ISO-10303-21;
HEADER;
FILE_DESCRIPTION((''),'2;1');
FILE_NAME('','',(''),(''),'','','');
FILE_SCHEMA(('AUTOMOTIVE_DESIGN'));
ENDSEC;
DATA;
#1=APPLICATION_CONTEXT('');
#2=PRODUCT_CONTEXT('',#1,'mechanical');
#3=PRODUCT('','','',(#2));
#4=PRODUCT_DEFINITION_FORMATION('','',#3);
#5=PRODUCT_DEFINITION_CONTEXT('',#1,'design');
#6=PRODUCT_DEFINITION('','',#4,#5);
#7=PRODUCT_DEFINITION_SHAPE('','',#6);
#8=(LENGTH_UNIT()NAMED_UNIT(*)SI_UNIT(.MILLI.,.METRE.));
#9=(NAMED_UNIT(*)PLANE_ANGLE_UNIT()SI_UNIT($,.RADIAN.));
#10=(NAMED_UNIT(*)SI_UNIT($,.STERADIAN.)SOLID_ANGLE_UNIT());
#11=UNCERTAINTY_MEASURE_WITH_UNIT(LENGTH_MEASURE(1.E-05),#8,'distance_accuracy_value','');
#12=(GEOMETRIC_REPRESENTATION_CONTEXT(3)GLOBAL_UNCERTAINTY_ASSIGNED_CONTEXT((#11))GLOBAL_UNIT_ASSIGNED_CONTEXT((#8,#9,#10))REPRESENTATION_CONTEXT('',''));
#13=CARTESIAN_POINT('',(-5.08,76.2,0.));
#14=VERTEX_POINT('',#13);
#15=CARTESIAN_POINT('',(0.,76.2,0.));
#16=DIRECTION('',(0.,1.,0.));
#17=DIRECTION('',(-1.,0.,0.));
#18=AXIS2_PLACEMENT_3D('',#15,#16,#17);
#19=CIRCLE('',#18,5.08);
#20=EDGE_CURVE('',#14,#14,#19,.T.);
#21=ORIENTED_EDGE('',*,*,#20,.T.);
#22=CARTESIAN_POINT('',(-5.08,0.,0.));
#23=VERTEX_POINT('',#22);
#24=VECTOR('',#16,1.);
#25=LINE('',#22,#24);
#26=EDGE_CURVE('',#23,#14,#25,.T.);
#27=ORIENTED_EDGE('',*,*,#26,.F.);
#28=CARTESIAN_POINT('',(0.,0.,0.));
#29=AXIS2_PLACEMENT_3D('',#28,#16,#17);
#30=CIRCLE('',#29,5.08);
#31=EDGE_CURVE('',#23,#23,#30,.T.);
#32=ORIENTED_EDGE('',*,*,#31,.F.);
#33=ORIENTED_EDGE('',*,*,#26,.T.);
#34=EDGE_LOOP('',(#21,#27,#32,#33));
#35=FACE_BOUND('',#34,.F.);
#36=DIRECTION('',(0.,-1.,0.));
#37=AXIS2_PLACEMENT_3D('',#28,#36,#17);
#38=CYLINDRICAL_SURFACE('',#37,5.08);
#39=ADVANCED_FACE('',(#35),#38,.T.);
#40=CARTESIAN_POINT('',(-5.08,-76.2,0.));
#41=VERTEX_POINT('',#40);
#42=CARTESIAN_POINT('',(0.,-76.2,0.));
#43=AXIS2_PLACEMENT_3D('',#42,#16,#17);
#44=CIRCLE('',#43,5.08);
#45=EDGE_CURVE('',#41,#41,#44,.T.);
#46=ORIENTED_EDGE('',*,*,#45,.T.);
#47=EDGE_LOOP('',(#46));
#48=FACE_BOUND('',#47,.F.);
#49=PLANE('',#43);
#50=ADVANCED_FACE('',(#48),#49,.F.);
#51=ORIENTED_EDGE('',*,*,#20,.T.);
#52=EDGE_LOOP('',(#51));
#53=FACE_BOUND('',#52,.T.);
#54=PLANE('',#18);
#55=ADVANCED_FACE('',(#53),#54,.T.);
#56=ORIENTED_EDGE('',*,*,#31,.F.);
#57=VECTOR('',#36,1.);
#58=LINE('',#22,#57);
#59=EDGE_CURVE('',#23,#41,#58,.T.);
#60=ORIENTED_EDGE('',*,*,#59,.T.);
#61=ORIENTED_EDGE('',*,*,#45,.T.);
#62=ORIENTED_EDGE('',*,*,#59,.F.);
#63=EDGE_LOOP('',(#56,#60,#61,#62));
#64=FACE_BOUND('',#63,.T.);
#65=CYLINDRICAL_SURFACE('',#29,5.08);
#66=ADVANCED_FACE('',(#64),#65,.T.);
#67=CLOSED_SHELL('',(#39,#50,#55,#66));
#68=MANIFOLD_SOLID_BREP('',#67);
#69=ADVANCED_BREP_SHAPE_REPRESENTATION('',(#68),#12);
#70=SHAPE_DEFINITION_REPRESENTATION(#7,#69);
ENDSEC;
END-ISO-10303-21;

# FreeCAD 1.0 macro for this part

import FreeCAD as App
import Part
import Sketcher
Q = App.Units.Quantity

doc = App.newDocument("Part")
body = doc.addObject("PartDesign::Body", "Body")

# Sketch on XZ plane
sketch1 = doc.addObject("Sketcher::SketchObject", "Sketch")
body.addObject(sketch1)
sketch1.AttachmentSupport = (doc.XZ_Plane, [""])
sketch1.MapMode = "FlatFace"
sketch1.addGeometry(Part.Circle(App.Vector(0, 0, 0), App.Vector(0, 0, 1), 5), False)
sketch1.addConstraint([
    Sketcher.Constraint("Coincident", 0, 3, -1, 1),
    Sketcher.Constraint("Diameter", 0, Q("0.4 in")),
])
pad1 = doc.addObject("PartDesign::Pad", "Pad")
body.addObject(pad1)
pad1.Profile = sketch1
pad1.Length = Q("6 in")
pad1.Midplane = True

doc.recompute()
